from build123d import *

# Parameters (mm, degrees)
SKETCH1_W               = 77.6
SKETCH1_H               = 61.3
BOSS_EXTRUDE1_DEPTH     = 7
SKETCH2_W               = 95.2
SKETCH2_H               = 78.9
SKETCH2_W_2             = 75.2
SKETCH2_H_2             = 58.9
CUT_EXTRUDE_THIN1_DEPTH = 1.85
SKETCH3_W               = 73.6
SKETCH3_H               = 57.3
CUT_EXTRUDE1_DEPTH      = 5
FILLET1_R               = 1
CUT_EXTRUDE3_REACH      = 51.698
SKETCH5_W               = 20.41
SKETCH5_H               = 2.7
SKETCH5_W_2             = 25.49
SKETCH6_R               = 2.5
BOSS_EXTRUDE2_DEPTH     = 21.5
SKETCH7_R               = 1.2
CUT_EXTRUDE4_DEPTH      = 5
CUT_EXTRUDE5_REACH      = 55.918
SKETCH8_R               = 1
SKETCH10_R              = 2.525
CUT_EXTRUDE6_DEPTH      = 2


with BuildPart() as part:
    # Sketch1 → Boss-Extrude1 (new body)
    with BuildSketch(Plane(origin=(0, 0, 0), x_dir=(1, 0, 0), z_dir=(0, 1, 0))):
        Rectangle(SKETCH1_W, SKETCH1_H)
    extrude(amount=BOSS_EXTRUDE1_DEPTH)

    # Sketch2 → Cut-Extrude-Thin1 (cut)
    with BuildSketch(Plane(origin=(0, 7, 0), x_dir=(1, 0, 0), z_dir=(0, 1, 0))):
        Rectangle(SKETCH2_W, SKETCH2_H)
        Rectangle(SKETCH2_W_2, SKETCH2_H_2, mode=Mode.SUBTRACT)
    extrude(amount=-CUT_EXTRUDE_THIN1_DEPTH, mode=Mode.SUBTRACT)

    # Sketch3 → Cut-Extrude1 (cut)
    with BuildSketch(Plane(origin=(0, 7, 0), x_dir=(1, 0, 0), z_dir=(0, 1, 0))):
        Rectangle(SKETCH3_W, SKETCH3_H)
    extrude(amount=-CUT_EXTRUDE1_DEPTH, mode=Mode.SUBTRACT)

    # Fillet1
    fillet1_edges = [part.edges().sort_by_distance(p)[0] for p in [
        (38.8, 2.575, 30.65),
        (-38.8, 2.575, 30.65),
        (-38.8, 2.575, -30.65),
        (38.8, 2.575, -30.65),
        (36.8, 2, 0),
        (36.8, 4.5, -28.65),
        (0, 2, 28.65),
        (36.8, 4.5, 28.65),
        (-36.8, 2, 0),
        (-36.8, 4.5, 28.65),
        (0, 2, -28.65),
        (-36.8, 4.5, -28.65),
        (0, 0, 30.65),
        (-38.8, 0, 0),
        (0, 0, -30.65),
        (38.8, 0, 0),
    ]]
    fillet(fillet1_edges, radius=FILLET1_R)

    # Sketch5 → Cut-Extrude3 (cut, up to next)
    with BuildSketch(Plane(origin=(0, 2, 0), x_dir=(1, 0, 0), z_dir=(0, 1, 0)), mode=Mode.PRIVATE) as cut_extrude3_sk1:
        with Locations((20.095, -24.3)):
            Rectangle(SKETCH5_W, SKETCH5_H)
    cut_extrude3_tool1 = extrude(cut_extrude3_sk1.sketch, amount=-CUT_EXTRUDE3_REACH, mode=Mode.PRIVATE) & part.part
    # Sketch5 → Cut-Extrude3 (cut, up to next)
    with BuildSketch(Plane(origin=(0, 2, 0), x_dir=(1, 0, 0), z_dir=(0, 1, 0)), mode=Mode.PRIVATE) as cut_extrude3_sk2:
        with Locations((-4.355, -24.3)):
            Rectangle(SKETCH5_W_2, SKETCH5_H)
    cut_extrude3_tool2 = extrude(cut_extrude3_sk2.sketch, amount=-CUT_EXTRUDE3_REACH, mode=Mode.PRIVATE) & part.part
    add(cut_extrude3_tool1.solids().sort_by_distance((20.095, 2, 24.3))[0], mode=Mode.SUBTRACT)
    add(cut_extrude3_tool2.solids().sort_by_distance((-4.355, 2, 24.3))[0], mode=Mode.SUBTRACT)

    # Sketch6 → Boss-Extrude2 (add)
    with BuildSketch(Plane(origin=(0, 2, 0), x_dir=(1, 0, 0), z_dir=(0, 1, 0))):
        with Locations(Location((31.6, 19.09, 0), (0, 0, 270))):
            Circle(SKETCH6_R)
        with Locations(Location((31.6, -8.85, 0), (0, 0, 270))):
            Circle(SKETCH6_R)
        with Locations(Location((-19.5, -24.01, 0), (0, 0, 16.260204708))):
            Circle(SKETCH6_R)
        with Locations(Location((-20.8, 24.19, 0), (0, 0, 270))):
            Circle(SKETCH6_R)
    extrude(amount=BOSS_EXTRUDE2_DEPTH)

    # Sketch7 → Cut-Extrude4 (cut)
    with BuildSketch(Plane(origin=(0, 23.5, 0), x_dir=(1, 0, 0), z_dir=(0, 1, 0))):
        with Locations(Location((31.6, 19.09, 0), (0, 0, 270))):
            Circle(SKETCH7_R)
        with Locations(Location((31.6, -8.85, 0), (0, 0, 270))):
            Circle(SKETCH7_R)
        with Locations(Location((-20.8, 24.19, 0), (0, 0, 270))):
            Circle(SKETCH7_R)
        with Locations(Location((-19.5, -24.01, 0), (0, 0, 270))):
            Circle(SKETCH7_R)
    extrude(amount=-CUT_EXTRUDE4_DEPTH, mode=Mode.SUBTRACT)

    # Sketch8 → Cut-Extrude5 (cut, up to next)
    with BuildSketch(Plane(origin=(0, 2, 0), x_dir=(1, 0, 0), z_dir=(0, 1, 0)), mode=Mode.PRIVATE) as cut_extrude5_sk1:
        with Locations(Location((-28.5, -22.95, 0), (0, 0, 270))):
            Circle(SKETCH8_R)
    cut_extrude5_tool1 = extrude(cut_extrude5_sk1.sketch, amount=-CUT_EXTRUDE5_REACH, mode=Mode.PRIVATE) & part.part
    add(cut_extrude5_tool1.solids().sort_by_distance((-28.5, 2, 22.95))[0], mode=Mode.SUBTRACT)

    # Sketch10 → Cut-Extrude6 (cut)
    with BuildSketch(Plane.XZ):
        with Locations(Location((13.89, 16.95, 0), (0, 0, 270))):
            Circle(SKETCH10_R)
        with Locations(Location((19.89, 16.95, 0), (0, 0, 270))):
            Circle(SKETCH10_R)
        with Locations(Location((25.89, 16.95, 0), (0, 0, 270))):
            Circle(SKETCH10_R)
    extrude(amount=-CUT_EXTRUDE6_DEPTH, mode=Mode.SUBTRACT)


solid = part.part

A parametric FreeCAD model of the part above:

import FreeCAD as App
import Part
import Sketcher
Q = App.Units.Quantity


def edges_at(feature, points):
    """Names of the edges that pass closest to the given points."""
    edges = feature.Shape.Edges
    near = lambda p: min(range(len(edges)), key=lambda i: edges[i].distToShape(Part.Vertex(*p))[0])
    return sorted({f"Edge{near(p) + 1}" for p in points})


def add_polygon(sketch, points):
    """Adds a closed chain of lines whose ends are joined by coincident constraints."""
    first, n = sketch.GeometryCount, len(points)
    for a, b in zip(points, points[1:] + points[:1]):
        sketch.addGeometry(Part.LineSegment(App.Vector(*a, 0), App.Vector(*b, 0)), False)
    for i in range(n):
        sketch.addConstraint(Sketcher.Constraint("Coincident", first + i, 2, first + (i + 1) % n, 1))

doc = App.newDocument("Part")
body = doc.addObject("PartDesign::Body", "Body")

# Sketch on XZ plane
sketch1 = body.newObject("Sketcher::SketchObject", "Sketch")
sketch1.AttachmentSupport = (doc.getObject("XZ_Plane"), [""])
sketch1.MapMode = "FlatFace"
add_polygon(sketch1, [(-39, -31), (-39, 31), (39, 31), (39, -31)])  # lines 0-3
sketch1.addConstraint(Sketcher.Constraint("Vertical", 0))
sketch1.addConstraint(Sketcher.Constraint("Horizontal", 1))
sketch1.addConstraint(Sketcher.Constraint("Vertical", 2))
sketch1.addConstraint(Sketcher.Constraint("Horizontal", 3))
sketch1.addConstraint(Sketcher.Constraint("Symmetric", 0, 2, 2, 2, -1, 1))
sketch1.addConstraint(Sketcher.Constraint("DistanceX", 1, 1, 1, 2, Q("77.6 mm")))
sketch1.addConstraint(Sketcher.Constraint("DistanceY", 0, 1, 0, 2, Q("61.3 mm")))
pad1 = body.newObject("PartDesign::Pad", "Pad")
pad1.Profile = sketch1
pad1.Length = 7
pad1.Reversed = True

# Sketch on XZ plane
sketch2 = body.newObject("Sketcher::SketchObject", "Sketch001")
sketch2.AttachmentSupport = (doc.getObject("XZ_Plane"), [""])
sketch2.MapMode = "FlatFace"
sketch2.AttachmentOffset = App.Placement(App.Vector(0, 0, -7), App.Rotation())
add_polygon(sketch2, [(-48, -39), (-48, 39), (48, 39), (48, -39)])  # lines 0-3
add_polygon(sketch2, [(38, 29), (-38, 29), (-38, -29), (38, -29)])  # lines 4-7
sketch2.addConstraint(Sketcher.Constraint("Vertical", 0))
sketch2.addConstraint(Sketcher.Constraint("Horizontal", 1))
sketch2.addConstraint(Sketcher.Constraint("Vertical", 2))
sketch2.addConstraint(Sketcher.Constraint("Horizontal", 3))
sketch2.addConstraint(Sketcher.Constraint("Horizontal", 4))
sketch2.addConstraint(Sketcher.Constraint("Vertical", 5))
sketch2.addConstraint(Sketcher.Constraint("Horizontal", 6))
sketch2.addConstraint(Sketcher.Constraint("Vertical", 7))
sketch2.addConstraint(Sketcher.Constraint("Symmetric", 0, 2, 2, 2, -1, 1))
sketch2.addConstraint(Sketcher.Constraint("Symmetric", 4, 2, 6, 2, -1, 1))
sketch2.addConstraint(Sketcher.Constraint("DistanceX", 1, 1, 1, 2, Q("95.2 mm")))
sketch2.addConstraint(Sketcher.Constraint("DistanceX", 4, 2, 4, 1, Q("75.2 mm")))
sketch2.addConstraint(Sketcher.Constraint("DistanceY", 0, 1, 0, 2, Q("78.9 mm")))
sketch2.addConstraint(Sketcher.Constraint("DistanceY", 5, 2, 5, 1, Q("58.9 mm")))
pocket1 = body.newObject("PartDesign::Pocket", "Pocket")
pocket1.Profile = sketch2
pocket1.Length = 1.85
pocket1.Reversed = True

# Sketch on XZ plane
sketch3 = body.newObject("Sketcher::SketchObject", "Sketch002")
sketch3.AttachmentSupport = (doc.getObject("XZ_Plane"), [""])
sketch3.MapMode = "FlatFace"
sketch3.AttachmentOffset = App.Placement(App.Vector(0, 0, -7), App.Rotation())
add_polygon(sketch3, [(-37, -29), (-37, 29), (37, 29), (37, -29)])  # lines 0-3
sketch3.addConstraint(Sketcher.Constraint("Vertical", 0))
sketch3.addConstraint(Sketcher.Constraint("Horizontal", 1))
sketch3.addConstraint(Sketcher.Constraint("Vertical", 2))
sketch3.addConstraint(Sketcher.Constraint("Horizontal", 3))
sketch3.addConstraint(Sketcher.Constraint("Symmetric", 0, 2, 2, 2, -1, 1))
sketch3.addConstraint(Sketcher.Constraint("DistanceX", 1, 1, 1, 2, Q("73.6 mm")))
sketch3.addConstraint(Sketcher.Constraint("DistanceY", 0, 1, 0, 2, Q("57.3 mm")))
pocket2 = body.newObject("PartDesign::Pocket", "Pocket001")
pocket2.Profile = sketch3
pocket2.Length = 5
pocket2.Reversed = True
doc.recompute()

fillet = body.newObject("PartDesign::Fillet", "Fillet")
fillet.Base = (pocket2, edges_at(pocket2, [
    (38.8, 2.575, 30.65),
    (-38.8, 2.575, 30.65),
    (-38.8, 2.575, -30.65),
    (38.8, 2.575, -30.65),
    (36.8, 2, 0),
    (36.8, 4.5, -28.65),
    (0, 2, 28.65),
    (36.8, 4.5, 28.65),
    (-36.8, 2, 0),
    (-36.8, 4.5, 28.65),
    (0, 2, -28.65),
    (-36.8, 4.5, -28.65),
    (0, 0, 30.65),
    (-38.8, 0, 0),
    (0, 0, -30.65),
    (38.8, 0, 0),
]))
fillet.Radius = 1

# Sketch on XZ plane
sketch4 = body.newObject("Sketcher::SketchObject", "Sketch003")
sketch4.AttachmentSupport = (doc.getObject("XZ_Plane"), [""])
sketch4.MapMode = "FlatFace"
sketch4.AttachmentOffset = App.Placement(App.Vector(0, 0, -2), App.Rotation())
add_polygon(sketch4, [(9.9, 22.9), (9.9, 25.6), (30.3, 25.6), (30.3, 22.9)])  # lines 0-3
sketch4.addConstraint(Sketcher.Constraint("Vertical", 0))
sketch4.addConstraint(Sketcher.Constraint("Horizontal", 1))
sketch4.addConstraint(Sketcher.Constraint("Vertical", 2))
sketch4.addConstraint(Sketcher.Constraint("Horizontal", 3))
sketch4.addConstraint(Sketcher.Constraint("DistanceY", 0, 1, 0, 2, Q("2.7 mm")))
sketch4.addConstraint(Sketcher.Constraint("DistanceX", 1, 1, 1, 2, Q("20.41 mm")))
sketch4.addConstraint(Sketcher.Constraint("DistanceX", -1, 1, 1, 2, Q("30.3 mm")))
sketch4.addConstraint(Sketcher.Constraint("DistanceY", -1, 1, 0, 2, Q("25.65 mm")))
pocket3 = body.newObject("PartDesign::Pocket", "Pocket002")
pocket3.Profile = sketch4
pocket3.Type = "UpToFirst"
pocket3.Reversed = True

# Sketch on XZ plane
sketch5 = body.newObject("Sketcher::SketchObject", "Sketch004")
sketch5.AttachmentSupport = (doc.getObject("XZ_Plane"), [""])
sketch5.MapMode = "FlatFace"
sketch5.AttachmentOffset = App.Placement(App.Vector(0, 0, -2), App.Rotation())
add_polygon(sketch5, [(-17.1, 22.9), (-17.1, 25.6), (8.4, 25.6), (8.4, 22.9)])  # lines 0-3
sketch5.addConstraint(Sketcher.Constraint("Vertical", 0))
sketch5.addConstraint(Sketcher.Constraint("Horizontal", 1))
sketch5.addConstraint(Sketcher.Constraint("Vertical", 2))
sketch5.addConstraint(Sketcher.Constraint("Horizontal", 3))
sketch5.addConstraint(Sketcher.Constraint("DistanceY", 0, 1, 0, 2, Q("2.7 mm")))
sketch5.addConstraint(Sketcher.Constraint("DistanceX", 1, 1, 1, 2, Q("25.49 mm")))
sketch5.addConstraint(Sketcher.Constraint("DistanceX", 0, 2, -1, 1, Q("17.1 mm")))
sketch5.addConstraint(Sketcher.Constraint("DistanceY", -1, 1, 0, 2, Q("25.65 mm")))
pocket4 = body.newObject("PartDesign::Pocket", "Pocket003")
pocket4.Profile = sketch5
pocket4.Type = "UpToFirst"
pocket4.Reversed = True

# Sketch on XZ plane
sketch6 = body.newObject("Sketcher::SketchObject", "Sketch005")
sketch6.AttachmentSupport = (doc.getObject("XZ_Plane"), [""])
sketch6.MapMode = "FlatFace"
sketch6.AttachmentOffset = App.Placement(App.Vector(0, 0, -2), App.Rotation())
sketch6.addGeometry(Part.Circle(App.Vector(31.6, -19.1, 0), App.Vector(0, 0, 1), 2.5), False)
sketch6.addGeometry(Part.Circle(App.Vector(31.6, 8.8, 0), App.Vector(0, 0, 1), 2.5), False)
sketch6.addGeometry(Part.Circle(App.Vector(-19.5, 24, 0), App.Vector(0, 0, 1), 2.5), False)
sketch6.addGeometry(Part.Circle(App.Vector(-20.8, -24.2, 0), App.Vector(0, 0, 1), 2.5), False)
sketch6.addConstraint(Sketcher.Constraint("Equal", 0, 1))
sketch6.addConstraint(Sketcher.Constraint("Equal", 1, 2))
sketch6.addConstraint(Sketcher.Constraint("Equal", 2, 3))
sketch6.addConstraint(Sketcher.Constraint("Vertical", 0, 3, 1, 3))
sketch6.addConstraint(Sketcher.Constraint("Diameter", 0, Q("5 mm")))
sketch6.addConstraint(Sketcher.Constraint("DistanceX", -1, 1, 0, 3, Q("31.6 mm")))
sketch6.addConstraint(Sketcher.Constraint("DistanceX", 2, 3, -1, 1, Q("19.5 mm")))
sketch6.addConstraint(Sketcher.Constraint("DistanceX", 3, 3, -1, 1, Q("20.8 mm")))
sketch6.addConstraint(Sketcher.Constraint("DistanceY", 0, 3, 2, 3, Q("43.1 mm")))
sketch6.addConstraint(Sketcher.Constraint("DistanceY", 3, 3, 2, 3, Q("48.2 mm")))
sketch6.addConstraint(Sketcher.Constraint("DistanceY", 0, 3, -1, 1, Q("19.09 mm")))
sketch6.addConstraint(Sketcher.Constraint("DistanceY", -1, 1, 1, 3, Q("8.85 mm")))
pad2 = body.newObject("PartDesign::Pad", "Pad001")
pad2.Profile = sketch6
pad2.Length = 21.5
pad2.Reversed = True

# Sketch on XZ plane
sketch7 = body.newObject("Sketcher::SketchObject", "Sketch006")
sketch7.AttachmentSupport = (doc.getObject("XZ_Plane"), [""])
sketch7.MapMode = "FlatFace"
sketch7.AttachmentOffset = App.Placement(App.Vector(0, 0, -23.5), App.Rotation())
sketch7.addGeometry(Part.Circle(App.Vector(31.6, -19.1, 0), App.Vector(0, 0, 1), 1.2), False)
sketch7.addGeometry(Part.Circle(App.Vector(31.6, 8.8, 0), App.Vector(0, 0, 1), 1.2), False)
sketch7.addGeometry(Part.Circle(App.Vector(-20.8, -24.2, 0), App.Vector(0, 0, 1), 1.2), False)
sketch7.addGeometry(Part.Circle(App.Vector(-19.5, 24, 0), App.Vector(0, 0, 1), 1.2), False)
sketch7.addConstraint(Sketcher.Constraint("Equal", 0, 1))
sketch7.addConstraint(Sketcher.Constraint("Equal", 1, 2))
sketch7.addConstraint(Sketcher.Constraint("Equal", 2, 3))
sketch7.addConstraint(Sketcher.Constraint("Vertical", 0, 3, 1, 3))
sketch7.addConstraint(Sketcher.Constraint("Diameter", 0, Q("2.4 mm")))
sketch7.addConstraint(Sketcher.Constraint("DistanceX", -1, 1, 0, 3, Q("31.6 mm")))
sketch7.addConstraint(Sketcher.Constraint("DistanceX", 2, 3, -1, 1, Q("20.8 mm")))
sketch7.addConstraint(Sketcher.Constraint("DistanceX", 3, 3, -1, 1, Q("19.5 mm")))
sketch7.addConstraint(Sketcher.Constraint("DistanceY", 2, 3, 0, 3, Q("5.1 mm")))
sketch7.addConstraint(Sketcher.Constraint("DistanceY", 2, 3, 3, 3, Q("48.2 mm")))
sketch7.addConstraint(Sketcher.Constraint("DistanceY", 0, 3, -1, 1, Q("19.09 mm")))
sketch7.addConstraint(Sketcher.Constraint("DistanceY", -1, 1, 1, 3, Q("8.85 mm")))
pocket5 = body.newObject("PartDesign::Pocket", "Pocket004")
pocket5.Profile = sketch7
pocket5.Length = 5
pocket5.Reversed = True

# Sketch on XZ plane
sketch8 = body.newObject("Sketcher::SketchObject", "Sketch007")
sketch8.AttachmentSupport = (doc.getObject("XZ_Plane"), [""])
sketch8.MapMode = "FlatFace"
sketch8.AttachmentOffset = App.Placement(App.Vector(0, 0, -2), App.Rotation())
sketch8.addGeometry(Part.Circle(App.Vector(-28.5, 22.9, 0), App.Vector(0, 0, 1), 1), False)
sketch8.addConstraint(Sketcher.Constraint("Diameter", 0, Q("2 mm")))
sketch8.addConstraint(Sketcher.Constraint("DistanceX", 0, 3, -1, 1, Q("28.5 mm")))
sketch8.addConstraint(Sketcher.Constraint("DistanceY", -1, 1, 0, 3, Q("22.95 mm")))
pocket6 = body.newObject("PartDesign::Pocket", "Pocket005")
pocket6.Profile = sketch8
pocket6.Type = "UpToFirst"
pocket6.Reversed = True

# Sketch on XZ plane
sketch9 = body.newObject("Sketcher::SketchObject", "Sketch008")
sketch9.AttachmentSupport = (doc.getObject("XZ_Plane"), [""])
sketch9.MapMode = "FlatFace"
sketch9.addGeometry(Part.Circle(App.Vector(13.9, 16.9, 0), App.Vector(0, 0, 1), 2.5), False)
sketch9.addGeometry(Part.Circle(App.Vector(19.9, 16.9, 0), App.Vector(0, 0, 1), 2.5), False)
sketch9.addGeometry(Part.Circle(App.Vector(25.9, 16.9, 0), App.Vector(0, 0, 1), 2.5), False)
sketch9.addConstraint(Sketcher.Constraint("Equal", 0, 1))
sketch9.addConstraint(Sketcher.Constraint("Equal", 1, 2))
sketch9.addConstraint(Sketcher.Constraint("Horizontal", 0, 3, 1, 3))
sketch9.addConstraint(Sketcher.Constraint("Horizontal", 1, 3, 2, 3))
sketch9.addConstraint(Sketcher.Constraint("Diameter", 0, Q("5.05 mm")))
sketch9.addConstraint(Sketcher.Constraint("DistanceX", 0, 3, 1, 3, Q("6 mm")))
sketch9.addConstraint(Sketcher.Constraint("DistanceX", 1, 3, 2, 3, Q("6 mm")))
sketch9.addConstraint(Sketcher.Constraint("DistanceX", -1, 1, 0, 3, Q("13.89 mm")))
sketch9.addConstraint(Sketcher.Constraint("DistanceY", -1, 1, 0, 3, Q("16.95 mm")))
pocket7 = body.newObject("PartDesign::Pocket", "Pocket006")
pocket7.Profile = sketch9
pocket7.Length = 2

doc.recompute()
